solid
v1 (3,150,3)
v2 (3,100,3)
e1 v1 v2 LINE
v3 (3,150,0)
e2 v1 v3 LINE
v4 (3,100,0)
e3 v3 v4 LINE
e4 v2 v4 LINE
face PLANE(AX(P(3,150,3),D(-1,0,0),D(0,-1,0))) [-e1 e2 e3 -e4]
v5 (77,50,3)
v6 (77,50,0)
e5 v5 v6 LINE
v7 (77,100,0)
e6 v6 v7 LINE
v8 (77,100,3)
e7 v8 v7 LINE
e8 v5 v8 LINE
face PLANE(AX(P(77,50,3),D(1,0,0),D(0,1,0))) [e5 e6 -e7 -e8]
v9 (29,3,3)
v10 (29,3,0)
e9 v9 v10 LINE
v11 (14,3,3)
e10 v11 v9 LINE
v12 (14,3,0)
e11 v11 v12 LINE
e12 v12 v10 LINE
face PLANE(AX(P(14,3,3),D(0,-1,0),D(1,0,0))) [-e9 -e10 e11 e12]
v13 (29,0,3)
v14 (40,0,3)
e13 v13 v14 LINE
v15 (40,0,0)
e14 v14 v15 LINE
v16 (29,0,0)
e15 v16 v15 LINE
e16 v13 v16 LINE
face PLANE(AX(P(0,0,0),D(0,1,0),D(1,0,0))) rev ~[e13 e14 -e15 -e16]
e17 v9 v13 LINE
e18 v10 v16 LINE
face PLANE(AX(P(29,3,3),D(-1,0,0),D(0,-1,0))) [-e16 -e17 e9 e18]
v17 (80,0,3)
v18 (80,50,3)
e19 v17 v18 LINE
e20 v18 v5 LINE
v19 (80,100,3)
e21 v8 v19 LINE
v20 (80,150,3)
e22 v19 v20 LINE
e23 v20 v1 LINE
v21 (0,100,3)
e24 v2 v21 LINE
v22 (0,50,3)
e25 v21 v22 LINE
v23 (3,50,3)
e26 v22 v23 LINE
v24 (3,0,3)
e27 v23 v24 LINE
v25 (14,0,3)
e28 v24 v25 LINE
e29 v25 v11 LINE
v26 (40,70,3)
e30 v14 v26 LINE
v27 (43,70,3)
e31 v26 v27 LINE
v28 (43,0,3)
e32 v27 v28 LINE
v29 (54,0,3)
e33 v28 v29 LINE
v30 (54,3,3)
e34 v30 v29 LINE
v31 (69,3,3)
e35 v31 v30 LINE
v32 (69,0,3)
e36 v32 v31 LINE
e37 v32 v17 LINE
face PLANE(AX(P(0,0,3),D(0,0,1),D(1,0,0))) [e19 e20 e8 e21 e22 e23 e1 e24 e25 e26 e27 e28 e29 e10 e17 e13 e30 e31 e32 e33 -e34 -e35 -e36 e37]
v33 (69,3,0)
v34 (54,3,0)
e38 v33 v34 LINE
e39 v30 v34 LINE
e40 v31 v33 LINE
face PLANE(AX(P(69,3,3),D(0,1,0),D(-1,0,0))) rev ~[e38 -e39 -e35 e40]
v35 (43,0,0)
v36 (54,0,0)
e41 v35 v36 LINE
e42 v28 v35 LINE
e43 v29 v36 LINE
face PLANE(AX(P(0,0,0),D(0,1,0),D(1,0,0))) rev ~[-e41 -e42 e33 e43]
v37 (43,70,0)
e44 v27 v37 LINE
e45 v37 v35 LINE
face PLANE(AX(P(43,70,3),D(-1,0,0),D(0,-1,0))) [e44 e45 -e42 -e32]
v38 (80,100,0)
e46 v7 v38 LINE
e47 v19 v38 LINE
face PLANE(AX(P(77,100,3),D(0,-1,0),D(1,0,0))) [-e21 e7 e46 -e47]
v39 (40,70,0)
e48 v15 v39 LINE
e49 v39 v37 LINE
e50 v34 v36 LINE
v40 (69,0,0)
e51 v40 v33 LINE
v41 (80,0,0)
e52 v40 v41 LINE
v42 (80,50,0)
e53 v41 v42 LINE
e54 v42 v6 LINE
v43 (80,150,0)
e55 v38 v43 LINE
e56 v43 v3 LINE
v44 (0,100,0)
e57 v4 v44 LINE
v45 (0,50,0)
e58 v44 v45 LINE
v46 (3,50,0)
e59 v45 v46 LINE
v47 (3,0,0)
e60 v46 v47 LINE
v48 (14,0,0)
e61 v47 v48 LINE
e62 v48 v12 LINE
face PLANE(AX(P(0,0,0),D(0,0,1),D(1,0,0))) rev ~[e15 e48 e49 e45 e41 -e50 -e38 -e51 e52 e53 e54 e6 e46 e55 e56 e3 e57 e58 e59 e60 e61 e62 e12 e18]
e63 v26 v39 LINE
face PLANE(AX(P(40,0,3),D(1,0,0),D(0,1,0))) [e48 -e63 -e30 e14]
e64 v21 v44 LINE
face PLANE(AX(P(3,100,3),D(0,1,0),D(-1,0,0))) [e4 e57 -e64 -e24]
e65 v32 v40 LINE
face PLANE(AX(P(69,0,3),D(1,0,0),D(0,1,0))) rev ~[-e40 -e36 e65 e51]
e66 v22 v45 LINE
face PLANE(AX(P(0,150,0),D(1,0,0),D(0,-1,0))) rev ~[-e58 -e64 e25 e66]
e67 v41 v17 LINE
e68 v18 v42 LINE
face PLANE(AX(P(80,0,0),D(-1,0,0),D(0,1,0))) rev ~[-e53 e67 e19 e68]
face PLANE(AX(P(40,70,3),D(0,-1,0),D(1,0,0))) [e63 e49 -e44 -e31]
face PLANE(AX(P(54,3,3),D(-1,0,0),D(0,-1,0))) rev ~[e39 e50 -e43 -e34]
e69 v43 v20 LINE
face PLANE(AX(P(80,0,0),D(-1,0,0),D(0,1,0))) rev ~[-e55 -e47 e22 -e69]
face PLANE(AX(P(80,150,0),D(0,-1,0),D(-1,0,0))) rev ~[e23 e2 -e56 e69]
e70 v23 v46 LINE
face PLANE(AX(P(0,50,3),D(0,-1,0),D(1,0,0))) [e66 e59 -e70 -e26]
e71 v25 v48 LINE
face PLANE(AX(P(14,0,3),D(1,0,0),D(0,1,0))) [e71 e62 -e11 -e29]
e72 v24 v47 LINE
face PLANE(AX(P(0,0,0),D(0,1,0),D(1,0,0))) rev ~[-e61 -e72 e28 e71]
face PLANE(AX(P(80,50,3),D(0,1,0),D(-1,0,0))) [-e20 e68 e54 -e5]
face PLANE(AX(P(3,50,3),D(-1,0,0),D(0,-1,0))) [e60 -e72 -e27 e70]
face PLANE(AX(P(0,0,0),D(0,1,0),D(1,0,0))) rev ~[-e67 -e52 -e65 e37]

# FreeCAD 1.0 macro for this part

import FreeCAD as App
import Part
import Sketcher
Q = App.Units.Quantity

doc = App.newDocument("Part")
body = doc.addObject("PartDesign::Body", "Body")

# Sketch on XY plane
sketch1 = doc.addObject("Sketcher::SketchObject", "Sketch")
body.addObject(sketch1)
sketch1.AttachmentSupport = (doc.XY_Plane, [""])
sketch1.MapMode = "FlatFace"
sketch1.addGeometry([
    Part.LineSegment(App.Vector(0, 150, 0), App.Vector(0, 0, 0)),
    Part.LineSegment(App.Vector(0, 0, 0), App.Vector(80, 0, 0)),
    Part.LineSegment(App.Vector(80, 0, 0), App.Vector(80, 150, 0)),
    Part.LineSegment(App.Vector(80, 150, 0), App.Vector(0, 150, 0)),
], False)
sketch1.addConstraint([
    Sketcher.Constraint("Coincident", 0, 2, 1, 1),
    Sketcher.Constraint("Coincident", 1, 2, 2, 1),
    Sketcher.Constraint("Coincident", 2, 2, 3, 1),
    Sketcher.Constraint("Coincident", 3, 2, 0, 1),
    Sketcher.Constraint("Vertical", 0),
    Sketcher.Constraint("Horizontal", 1),
    Sketcher.Constraint("Vertical", 2),
    Sketcher.Constraint("Horizontal", 3),
    Sketcher.Constraint("Coincident", 0, 2, -1, 1),
    Sketcher.Constraint("DistanceX", 1, 1, 1, 2, Q("80 mm")),
    Sketcher.Constraint("DistanceY", 0, 2, 0, 1, Q("150 mm")),
])
pad1 = doc.addObject("PartDesign::Pad", "Pad")
body.addObject(pad1)
pad1.Profile = sketch1
pad1.Length = 3

# Sketch on XY plane
sketch2 = doc.addObject("Sketcher::SketchObject", "Sketch001")
body.addObject(sketch2)
sketch2.AttachmentSupport = (doc.XY_Plane, [""])
sketch2.MapMode = "FlatFace"
sketch2.AttachmentOffset = App.Placement(App.Vector(0, 0, 3), App.Rotation())
sketch2.addGeometry([
    Part.LineSegment(App.Vector(0, 0, 0), App.Vector(3, 0, 0)),  # 0
    Part.LineSegment(App.Vector(3, 0, 0), App.Vector(3, 50, 0)),  # 1
    Part.LineSegment(App.Vector(3, 50, 0), App.Vector(0, 50, 0)),  # 2
    Part.LineSegment(App.Vector(0, 50, 0), App.Vector(0, 0, 0)),  # 3
    Part.LineSegment(App.Vector(3, 150, 0), App.Vector(0, 150, 0)),  # 4
    Part.LineSegment(App.Vector(0, 150, 0), App.Vector(0, 100, 0)),  # 5
    Part.LineSegment(App.Vector(0, 100, 0), App.Vector(3, 100, 0)),  # 6
    Part.LineSegment(App.Vector(3, 100, 0), App.Vector(3, 150, 0)),  # 7
    Part.LineSegment(App.Vector(80, 100, 0), App.Vector(77, 100, 0)),  # 8
    Part.LineSegment(App.Vector(77, 100, 0), App.Vector(77, 50, 0)),  # 9
    Part.LineSegment(App.Vector(77, 50, 0), App.Vector(80, 50, 0)),  # 10
    Part.LineSegment(App.Vector(80, 50, 0), App.Vector(80, 100, 0)),  # 11
], False)
sketch2.addConstraint([
    Sketcher.Constraint("Coincident", 0, 2, 1, 1),
    Sketcher.Constraint("Coincident", 1, 2, 2, 1),
    Sketcher.Constraint("Coincident", 2, 2, 3, 1),
    Sketcher.Constraint("Coincident", 3, 2, 0, 1),
    Sketcher.Constraint("Coincident", 4, 2, 5, 1),
    Sketcher.Constraint("Coincident", 5, 2, 6, 1),
    Sketcher.Constraint("Coincident", 6, 2, 7, 1),
    Sketcher.Constraint("Coincident", 7, 2, 4, 1),
    Sketcher.Constraint("Coincident", 8, 2, 9, 1),
    Sketcher.Constraint("Coincident", 9, 2, 10, 1),
    Sketcher.Constraint("Coincident", 10, 2, 11, 1),
    Sketcher.Constraint("Coincident", 11, 2, 8, 1),
    Sketcher.Constraint("Horizontal", 0),
    Sketcher.Constraint("Vertical", 1),
    Sketcher.Constraint("Horizontal", 2),
    Sketcher.Constraint("Vertical", 3),
    Sketcher.Constraint("Horizontal", 4),
    Sketcher.Constraint("Vertical", 5),
    Sketcher.Constraint("Horizontal", 6),
    Sketcher.Constraint("Vertical", 7),
    Sketcher.Constraint("Horizontal", 8),
    Sketcher.Constraint("Vertical", 9),
    Sketcher.Constraint("Horizontal", 10),
    Sketcher.Constraint("Vertical", 11),
    Sketcher.Constraint("Coincident", 3, 2, -1, 1),
    Sketcher.Constraint("PointOnObject", 4, 2, -2),
    Sketcher.Constraint("Horizontal", 6, 2, 8, 2),
    Sketcher.Constraint("Horizontal", 2, 2, 9, 2),
    Sketcher.Constraint("Vertical", 1, 2, 6, 2),
    Sketcher.Constraint("Equal", 6, 8),
    Sketcher.Constraint("Equal", 3, 5),
    Sketcher.Constraint("Equal", 7, 9),
    Sketcher.Constraint("DistanceX", 0, 1, 0, 2, Q("3 mm")),
    Sketcher.Constraint("DistanceY", 1, 1, 1, 2, Q("50 mm")),
    Sketcher.Constraint("DistanceX", -1, 1, 8, 2, Q("77 mm")),
])
pocket1 = doc.addObject("PartDesign::Pocket", "Pocket")
body.addObject(pocket1)
pocket1.Profile = sketch2
pocket1.Length = 3

# Sketch on XY plane
sketch3 = doc.addObject("Sketcher::SketchObject", "Sketch002")
body.addObject(sketch3)
sketch3.AttachmentSupport = (doc.XY_Plane, [""])
sketch3.MapMode = "FlatFace"
sketch3.AttachmentOffset = App.Placement(App.Vector(0, 0, 3), App.Rotation())
sketch3.addGeometry([
    Part.LineSegment(App.Vector(43, 70, 0), App.Vector(40, 70, 0)),
    Part.LineSegment(App.Vector(40, 70, 0), App.Vector(40, 0, 0)),
    Part.LineSegment(App.Vector(40, 0, 0), App.Vector(43, 0, 0)),
    Part.LineSegment(App.Vector(43, 0, 0), App.Vector(43, 70, 0)),
], False)
sketch3.addConstraint([
    Sketcher.Constraint("Coincident", 0, 2, 1, 1),
    Sketcher.Constraint("Coincident", 1, 2, 2, 1),
    Sketcher.Constraint("Coincident", 2, 2, 3, 1),
    Sketcher.Constraint("Coincident", 3, 2, 0, 1),
    Sketcher.Constraint("Horizontal", 0),
    Sketcher.Constraint("Vertical", 1),
    Sketcher.Constraint("Horizontal", 2),
    Sketcher.Constraint("Vertical", 3),
    Sketcher.Constraint("PointOnObject", 1, 2, -1),
    Sketcher.Constraint("DistanceX", 0, 2, 0, 1, Q("3 mm")),
    Sketcher.Constraint("DistanceY", 1, 2, 1, 1, Q("70 mm")),
    Sketcher.Constraint("DistanceX", -1, 1, 0, 2, Q("40 mm")),
])
pocket2 = doc.addObject("PartDesign::Pocket", "Pocket001")
body.addObject(pocket2)
pocket2.Profile = sketch3
pocket2.Length = 10

# Sketch on XY plane
sketch4 = doc.addObject("Sketcher::SketchObject", "Sketch003")
body.addObject(sketch4)
sketch4.AttachmentSupport = (doc.XY_Plane, [""])
sketch4.MapMode = "FlatFace"
sketch4.AttachmentOffset = App.Placement(App.Vector(0, 0, 3), App.Rotation())
sketch4.addGeometry([
    Part.LineSegment(App.Vector(29, 3, 0), App.Vector(14, 3, 0)),  # 0
    Part.LineSegment(App.Vector(14, 3, 0), App.Vector(14, 0, 0)),  # 1
    Part.LineSegment(App.Vector(14, 0, 0), App.Vector(29, 0, 0)),  # 2
    Part.LineSegment(App.Vector(29, 0, 0), App.Vector(29, 3, 0)),  # 3
    Part.LineSegment(App.Vector(69, 0, 0), App.Vector(69, 3, 0)),  # 4
    Part.LineSegment(App.Vector(69, 3, 0), App.Vector(54, 3, 0)),  # 5
    Part.LineSegment(App.Vector(54, 3, 0), App.Vector(54, 0, 0)),  # 6
    Part.LineSegment(App.Vector(54, 0, 0), App.Vector(69, 0, 0)),  # 7
], False)
sketch4.addConstraint([
    Sketcher.Constraint("Coincident", 0, 2, 1, 1),
    Sketcher.Constraint("Coincident", 1, 2, 2, 1),
    Sketcher.Constraint("Coincident", 2, 2, 3, 1),
    Sketcher.Constraint("Coincident", 3, 2, 0, 1),
    Sketcher.Constraint("Coincident", 4, 2, 5, 1),
    Sketcher.Constraint("Coincident", 5, 2, 6, 1),
    Sketcher.Constraint("Coincident", 6, 2, 7, 1),
    Sketcher.Constraint("Coincident", 7, 2, 4, 1),
    Sketcher.Constraint("Horizontal", 0),
    Sketcher.Constraint("Vertical", 1),
    Sketcher.Constraint("Horizontal", 2),
    Sketcher.Constraint("Vertical", 3),
    Sketcher.Constraint("Vertical", 4),
    Sketcher.Constraint("Horizontal", 5),
    Sketcher.Constraint("Vertical", 6),
    Sketcher.Constraint("Horizontal", 7),
    Sketcher.Constraint("PointOnObject", 1, 2, -1),
    Sketcher.Constraint("PointOnObject", 6, 2, -1),
    Sketcher.Constraint("Horizontal", 3, 2, 4, 2),
    Sketcher.Constraint("Equal", 2, 5),
    Sketcher.Constraint("DistanceX", 0, 2, 0, 1, Q("15 mm")),
    Sketcher.Constraint("DistanceY", 1, 2, 1, 1, Q("3 mm")),
    Sketcher.Constraint("DistanceX", -1, 1, 0, 2, Q("14 mm")),
    Sketcher.Constraint("DistanceX", -1, 1, 4, 2, Q("69 mm")),
])
pocket3 = doc.addObject("PartDesign::Pocket", "Pocket002")
body.addObject(pocket3)
pocket3.Profile = sketch4
pocket3.Length = 10

doc.recompute()
